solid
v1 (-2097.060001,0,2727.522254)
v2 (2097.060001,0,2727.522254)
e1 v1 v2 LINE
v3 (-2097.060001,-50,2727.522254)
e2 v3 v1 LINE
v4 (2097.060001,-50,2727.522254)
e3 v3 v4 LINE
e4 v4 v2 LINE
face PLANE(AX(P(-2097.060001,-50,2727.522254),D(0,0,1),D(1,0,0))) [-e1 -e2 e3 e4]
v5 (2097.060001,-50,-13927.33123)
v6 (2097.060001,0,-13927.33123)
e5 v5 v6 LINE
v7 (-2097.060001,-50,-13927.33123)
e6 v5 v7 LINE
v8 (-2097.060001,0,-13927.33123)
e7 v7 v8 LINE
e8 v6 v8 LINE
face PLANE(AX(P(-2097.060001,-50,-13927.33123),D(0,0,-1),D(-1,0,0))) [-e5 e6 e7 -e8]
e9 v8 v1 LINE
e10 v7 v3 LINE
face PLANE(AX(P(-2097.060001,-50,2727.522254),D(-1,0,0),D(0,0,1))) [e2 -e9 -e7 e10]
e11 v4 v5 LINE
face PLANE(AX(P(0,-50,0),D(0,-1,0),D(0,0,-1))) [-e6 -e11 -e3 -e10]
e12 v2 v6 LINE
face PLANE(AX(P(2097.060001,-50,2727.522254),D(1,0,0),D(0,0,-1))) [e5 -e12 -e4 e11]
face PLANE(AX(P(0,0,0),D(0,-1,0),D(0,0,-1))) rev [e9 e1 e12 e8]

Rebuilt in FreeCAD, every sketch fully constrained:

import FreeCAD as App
import Part
import Sketcher
from FreeCAD import Vector
Q = App.Units.Quantity

doc = App.newDocument("Part")
body = doc.addObject("PartDesign::Body", "Body")

sketch1 = body.newObject("Sketcher::SketchObject", "Sketch")
sketch1.AttachmentSupport = (doc.getObject("XZ_Plane"), [""])
sketch1.MapMode = "FlatFace"
sketch1.addGeometry([
    Part.LineSegment(Vector(-2097, -13927, 0), Vector(-2097, 2728, 0)),
    Part.LineSegment(Vector(-2097, 2728, 0), Vector(2097, 2728, 0)),
    Part.LineSegment(Vector(2097, 2728, 0), Vector(2097, -13927, 0)),
    Part.LineSegment(Vector(2097, -13927, 0), Vector(-2097, -13927, 0)),
], False)
sketch1.addConstraint([
    Sketcher.Constraint("Coincident", 0, 2, 1, 1),
    Sketcher.Constraint("Coincident", 1, 2, 2, 1),
    Sketcher.Constraint("Coincident", 2, 2, 3, 1),
    Sketcher.Constraint("Coincident", 3, 2, 0, 1),
    Sketcher.Constraint("Vertical", 0),
    Sketcher.Constraint("Horizontal", 1),
    Sketcher.Constraint("Vertical", 2),
    Sketcher.Constraint("Horizontal", 3),
    Sketcher.Constraint("DistanceX", 1, 1, 1, 2, Q("4194.120002 mm")),
    Sketcher.Constraint("DistanceX", 0, 2, -1, 1, Q("2097.060001 mm")),
    Sketcher.Constraint("DistanceY", 0, 1, 0, 2, Q("16654.853485 mm")),
    Sketcher.Constraint("DistanceY", 2, 2, -1, 1, Q("13927.33123 mm")),
])
pad1 = body.newObject("PartDesign::Pad", "Pad")
pad1.Profile = sketch1
pad1.Length = 50

doc.recompute()
